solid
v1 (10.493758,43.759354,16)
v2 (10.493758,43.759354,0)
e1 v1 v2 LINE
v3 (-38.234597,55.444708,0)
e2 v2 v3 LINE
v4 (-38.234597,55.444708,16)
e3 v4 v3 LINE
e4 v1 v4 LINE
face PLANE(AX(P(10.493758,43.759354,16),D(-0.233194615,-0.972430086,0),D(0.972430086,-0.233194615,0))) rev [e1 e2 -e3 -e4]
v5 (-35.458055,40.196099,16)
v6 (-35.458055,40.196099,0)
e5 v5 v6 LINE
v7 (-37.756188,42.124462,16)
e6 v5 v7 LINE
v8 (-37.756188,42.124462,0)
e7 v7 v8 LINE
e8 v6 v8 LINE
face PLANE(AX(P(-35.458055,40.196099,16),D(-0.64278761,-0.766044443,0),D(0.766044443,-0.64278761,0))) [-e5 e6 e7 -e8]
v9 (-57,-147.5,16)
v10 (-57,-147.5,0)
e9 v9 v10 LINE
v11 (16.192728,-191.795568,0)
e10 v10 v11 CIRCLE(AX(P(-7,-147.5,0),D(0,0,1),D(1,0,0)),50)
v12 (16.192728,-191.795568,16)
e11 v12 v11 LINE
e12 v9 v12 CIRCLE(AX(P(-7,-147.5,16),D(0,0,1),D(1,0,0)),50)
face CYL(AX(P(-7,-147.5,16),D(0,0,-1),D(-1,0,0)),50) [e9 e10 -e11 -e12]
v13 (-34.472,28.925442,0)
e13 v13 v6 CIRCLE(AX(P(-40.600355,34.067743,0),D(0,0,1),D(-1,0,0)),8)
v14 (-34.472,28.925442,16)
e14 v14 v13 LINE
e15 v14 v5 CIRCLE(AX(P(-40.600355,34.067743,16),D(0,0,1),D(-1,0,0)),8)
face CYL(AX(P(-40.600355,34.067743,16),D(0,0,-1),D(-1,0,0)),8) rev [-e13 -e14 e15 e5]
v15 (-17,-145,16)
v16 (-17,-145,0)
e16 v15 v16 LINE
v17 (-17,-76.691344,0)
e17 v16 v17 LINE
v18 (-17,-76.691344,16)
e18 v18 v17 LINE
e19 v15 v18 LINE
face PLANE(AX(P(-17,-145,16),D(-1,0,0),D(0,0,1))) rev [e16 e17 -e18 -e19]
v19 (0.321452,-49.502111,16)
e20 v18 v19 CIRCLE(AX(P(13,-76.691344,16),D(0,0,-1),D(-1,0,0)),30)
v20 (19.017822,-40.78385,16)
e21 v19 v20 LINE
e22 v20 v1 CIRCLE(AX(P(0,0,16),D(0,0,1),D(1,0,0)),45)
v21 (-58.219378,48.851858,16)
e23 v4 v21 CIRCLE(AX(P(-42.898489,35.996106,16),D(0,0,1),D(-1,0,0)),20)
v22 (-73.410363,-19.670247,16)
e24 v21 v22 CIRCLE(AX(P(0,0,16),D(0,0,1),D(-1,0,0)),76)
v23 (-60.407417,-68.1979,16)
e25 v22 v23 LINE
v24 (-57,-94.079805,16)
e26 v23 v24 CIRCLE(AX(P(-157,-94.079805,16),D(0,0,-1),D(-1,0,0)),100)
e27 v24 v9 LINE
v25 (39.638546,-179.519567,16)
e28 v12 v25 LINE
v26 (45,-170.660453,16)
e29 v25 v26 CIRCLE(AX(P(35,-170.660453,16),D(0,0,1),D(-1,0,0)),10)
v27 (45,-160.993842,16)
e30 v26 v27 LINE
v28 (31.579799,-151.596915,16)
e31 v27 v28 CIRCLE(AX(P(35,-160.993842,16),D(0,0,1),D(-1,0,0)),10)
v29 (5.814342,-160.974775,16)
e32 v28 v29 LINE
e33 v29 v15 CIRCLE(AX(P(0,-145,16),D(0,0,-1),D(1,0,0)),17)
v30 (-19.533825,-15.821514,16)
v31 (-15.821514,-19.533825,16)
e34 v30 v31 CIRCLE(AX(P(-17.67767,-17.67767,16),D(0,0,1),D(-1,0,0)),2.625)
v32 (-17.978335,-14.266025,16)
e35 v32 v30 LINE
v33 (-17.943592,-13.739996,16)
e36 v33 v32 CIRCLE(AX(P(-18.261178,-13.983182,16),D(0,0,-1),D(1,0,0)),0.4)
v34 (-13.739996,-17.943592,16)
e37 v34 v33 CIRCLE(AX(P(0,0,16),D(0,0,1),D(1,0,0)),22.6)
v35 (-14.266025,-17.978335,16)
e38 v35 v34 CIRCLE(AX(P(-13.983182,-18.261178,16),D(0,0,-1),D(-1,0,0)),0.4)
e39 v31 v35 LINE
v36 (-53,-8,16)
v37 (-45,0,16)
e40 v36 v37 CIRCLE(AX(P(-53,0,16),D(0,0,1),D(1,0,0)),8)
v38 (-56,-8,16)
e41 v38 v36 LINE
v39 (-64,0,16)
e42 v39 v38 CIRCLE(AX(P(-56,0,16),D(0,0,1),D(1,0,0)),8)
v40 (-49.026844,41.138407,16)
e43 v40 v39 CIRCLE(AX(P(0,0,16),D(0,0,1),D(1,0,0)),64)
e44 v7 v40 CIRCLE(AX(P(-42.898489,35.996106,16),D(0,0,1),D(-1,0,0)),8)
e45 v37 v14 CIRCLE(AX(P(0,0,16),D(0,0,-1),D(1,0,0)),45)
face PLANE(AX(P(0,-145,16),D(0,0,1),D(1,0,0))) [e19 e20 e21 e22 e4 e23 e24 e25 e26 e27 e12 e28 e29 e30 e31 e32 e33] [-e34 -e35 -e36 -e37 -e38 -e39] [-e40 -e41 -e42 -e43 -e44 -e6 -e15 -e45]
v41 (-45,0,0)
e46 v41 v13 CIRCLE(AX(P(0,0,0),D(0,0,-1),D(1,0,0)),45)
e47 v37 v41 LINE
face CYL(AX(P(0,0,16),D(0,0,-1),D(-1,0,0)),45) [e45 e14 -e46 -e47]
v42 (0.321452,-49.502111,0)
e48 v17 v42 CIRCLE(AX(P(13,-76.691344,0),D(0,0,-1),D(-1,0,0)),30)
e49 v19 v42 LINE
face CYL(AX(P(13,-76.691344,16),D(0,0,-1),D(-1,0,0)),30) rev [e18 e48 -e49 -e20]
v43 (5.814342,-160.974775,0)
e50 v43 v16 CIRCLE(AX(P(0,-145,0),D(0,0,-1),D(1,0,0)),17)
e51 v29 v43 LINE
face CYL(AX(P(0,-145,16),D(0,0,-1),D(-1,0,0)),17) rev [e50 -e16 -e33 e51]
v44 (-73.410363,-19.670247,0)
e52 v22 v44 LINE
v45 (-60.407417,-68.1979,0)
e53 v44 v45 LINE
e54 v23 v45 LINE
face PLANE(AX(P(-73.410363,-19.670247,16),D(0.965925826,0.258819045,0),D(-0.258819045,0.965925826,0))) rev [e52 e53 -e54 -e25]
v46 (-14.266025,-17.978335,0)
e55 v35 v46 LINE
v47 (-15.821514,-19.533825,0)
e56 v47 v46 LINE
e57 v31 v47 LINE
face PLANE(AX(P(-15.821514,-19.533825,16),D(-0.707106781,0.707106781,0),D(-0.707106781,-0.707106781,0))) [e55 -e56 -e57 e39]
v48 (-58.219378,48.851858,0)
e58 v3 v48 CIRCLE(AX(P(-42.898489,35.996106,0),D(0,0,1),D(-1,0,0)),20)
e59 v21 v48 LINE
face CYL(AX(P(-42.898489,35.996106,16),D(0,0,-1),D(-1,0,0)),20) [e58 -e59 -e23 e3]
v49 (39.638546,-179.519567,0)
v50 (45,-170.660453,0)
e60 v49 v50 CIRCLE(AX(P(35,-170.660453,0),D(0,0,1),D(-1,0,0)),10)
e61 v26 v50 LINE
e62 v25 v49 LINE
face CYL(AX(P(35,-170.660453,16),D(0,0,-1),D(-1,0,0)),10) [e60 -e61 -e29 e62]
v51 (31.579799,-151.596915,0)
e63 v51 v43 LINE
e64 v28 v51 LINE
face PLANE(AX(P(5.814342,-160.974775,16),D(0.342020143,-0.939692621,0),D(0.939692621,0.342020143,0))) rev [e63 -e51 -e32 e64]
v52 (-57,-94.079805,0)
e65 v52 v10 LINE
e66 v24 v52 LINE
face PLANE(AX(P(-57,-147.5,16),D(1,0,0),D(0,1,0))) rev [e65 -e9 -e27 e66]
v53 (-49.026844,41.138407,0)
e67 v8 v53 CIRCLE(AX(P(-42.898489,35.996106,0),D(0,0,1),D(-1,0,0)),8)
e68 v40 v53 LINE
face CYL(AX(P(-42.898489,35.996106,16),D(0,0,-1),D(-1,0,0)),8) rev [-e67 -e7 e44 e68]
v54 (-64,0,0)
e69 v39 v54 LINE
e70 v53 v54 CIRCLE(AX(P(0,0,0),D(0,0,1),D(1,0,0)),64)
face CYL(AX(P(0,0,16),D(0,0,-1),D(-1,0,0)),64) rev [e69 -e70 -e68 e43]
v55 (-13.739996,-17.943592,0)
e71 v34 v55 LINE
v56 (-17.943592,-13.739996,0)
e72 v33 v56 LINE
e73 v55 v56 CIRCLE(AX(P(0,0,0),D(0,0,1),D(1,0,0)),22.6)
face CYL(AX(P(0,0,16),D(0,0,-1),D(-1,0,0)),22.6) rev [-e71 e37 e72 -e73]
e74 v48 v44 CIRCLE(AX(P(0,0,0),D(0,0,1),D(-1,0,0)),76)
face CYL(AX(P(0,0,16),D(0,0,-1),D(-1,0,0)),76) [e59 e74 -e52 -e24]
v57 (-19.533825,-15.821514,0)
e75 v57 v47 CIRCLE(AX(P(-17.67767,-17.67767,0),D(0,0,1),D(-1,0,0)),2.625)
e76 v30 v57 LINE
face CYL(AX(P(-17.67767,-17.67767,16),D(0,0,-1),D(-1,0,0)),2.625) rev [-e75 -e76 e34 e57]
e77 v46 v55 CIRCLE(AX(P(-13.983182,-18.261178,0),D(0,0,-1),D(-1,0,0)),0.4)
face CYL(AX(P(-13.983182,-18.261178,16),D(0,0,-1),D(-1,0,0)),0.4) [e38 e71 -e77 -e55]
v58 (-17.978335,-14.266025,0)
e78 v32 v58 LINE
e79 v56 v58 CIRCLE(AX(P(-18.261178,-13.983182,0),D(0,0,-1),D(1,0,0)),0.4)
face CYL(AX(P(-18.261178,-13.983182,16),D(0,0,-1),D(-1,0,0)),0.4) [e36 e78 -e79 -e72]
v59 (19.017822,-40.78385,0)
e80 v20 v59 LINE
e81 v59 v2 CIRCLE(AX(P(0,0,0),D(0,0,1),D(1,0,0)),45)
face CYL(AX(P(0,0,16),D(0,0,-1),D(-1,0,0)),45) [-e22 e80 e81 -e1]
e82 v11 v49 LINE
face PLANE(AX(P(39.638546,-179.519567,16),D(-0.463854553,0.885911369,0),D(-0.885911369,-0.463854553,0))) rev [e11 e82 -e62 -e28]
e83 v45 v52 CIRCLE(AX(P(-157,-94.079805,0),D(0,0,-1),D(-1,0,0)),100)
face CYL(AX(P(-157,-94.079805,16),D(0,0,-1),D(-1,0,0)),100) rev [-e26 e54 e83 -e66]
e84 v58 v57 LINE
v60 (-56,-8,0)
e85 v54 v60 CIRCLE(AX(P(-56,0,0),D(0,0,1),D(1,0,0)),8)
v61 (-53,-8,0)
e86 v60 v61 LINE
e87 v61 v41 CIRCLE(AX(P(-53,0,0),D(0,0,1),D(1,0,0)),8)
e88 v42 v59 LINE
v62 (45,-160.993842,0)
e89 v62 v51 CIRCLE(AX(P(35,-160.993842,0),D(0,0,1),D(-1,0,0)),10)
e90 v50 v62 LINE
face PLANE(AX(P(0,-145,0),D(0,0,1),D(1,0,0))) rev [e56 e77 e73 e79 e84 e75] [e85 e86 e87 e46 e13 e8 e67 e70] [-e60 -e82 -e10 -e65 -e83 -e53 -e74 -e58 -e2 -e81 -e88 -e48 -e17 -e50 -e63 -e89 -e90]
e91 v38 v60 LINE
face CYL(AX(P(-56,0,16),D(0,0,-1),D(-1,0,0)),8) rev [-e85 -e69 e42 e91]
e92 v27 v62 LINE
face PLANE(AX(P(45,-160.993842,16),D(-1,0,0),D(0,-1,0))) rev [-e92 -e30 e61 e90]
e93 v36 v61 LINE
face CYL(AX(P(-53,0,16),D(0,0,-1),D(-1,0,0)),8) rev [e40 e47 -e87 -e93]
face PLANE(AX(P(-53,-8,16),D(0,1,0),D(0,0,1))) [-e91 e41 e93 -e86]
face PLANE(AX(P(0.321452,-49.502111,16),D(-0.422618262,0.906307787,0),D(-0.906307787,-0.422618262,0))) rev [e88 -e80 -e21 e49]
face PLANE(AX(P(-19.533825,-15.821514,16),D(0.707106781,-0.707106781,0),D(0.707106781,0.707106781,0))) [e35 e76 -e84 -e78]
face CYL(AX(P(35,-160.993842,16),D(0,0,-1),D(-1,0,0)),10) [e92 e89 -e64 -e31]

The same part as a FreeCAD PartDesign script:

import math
import FreeCAD as App
import Part
import Sketcher

V = App.Vector
Q = App.Units.Quantity

doc = App.newDocument("Part")
body = doc.addObject("PartDesign::Body", "Body")

# Sketch on XY plane
sketch1 = doc.addObject("Sketcher::SketchObject", "Sketch")
body.addObject(sketch1)
sketch1.AttachmentSupport = (doc.XY_Plane, [""])
sketch1.MapMode = "FlatFace"
sketch1.addGeometry([
    Part.LineSegment(V(31.58, -151.6, 0), V(5.81, -160.97, 0)),  # 0
    Part.ArcOfCircle(Part.Circle(V(0, -145, 0), V(0, 0, 1), 17), math.radians(180), math.radians(290)),  # 1
    Part.LineSegment(V(-17, -145, 0), V(-17, -76.69, 0)),  # 2
    Part.ArcOfCircle(Part.Circle(V(13, -76.69, 0), V(0, 0, 1), 30), math.radians(115), math.radians(180)),  # 3
    Part.LineSegment(V(0.32, -49.5, 0), V(19.02, -40.78, 0)),  # 4
    Part.ArcOfCircle(Part.Circle(V(0, 0, 0), V(0, 0, 1), 45), math.radians(-65), math.radians(77)),  # 5
    Part.LineSegment(V(10.49, 43.76, 0), V(-38.23, 55.44, 0)),  # 6
    Part.ArcOfCircle(Part.Circle(V(-42.9, 36, 0), V(0, 0, 1), 20), math.radians(77), math.radians(140)),  # 7
    Part.ArcOfCircle(Part.Circle(V(0, 0, 0), V(0, 0, 1), 76), math.radians(140), math.radians(195)),  # 8
    Part.LineSegment(V(-73.41, -19.67, 0), V(-60.41, -68.2, 0)),  # 9
    Part.ArcOfCircle(Part.Circle(V(-157, -94.08, 0), V(0, 0, 1), 100), math.radians(0), math.radians(15)),  # 10
    Part.LineSegment(V(-57, -94.08, 0), V(-57, -147.5, 0)),  # 11
    Part.ArcOfCircle(Part.Circle(V(-7, -147.5, 0), V(0, 0, 1), 50), math.radians(180), math.radians(298)),  # 12
    Part.LineSegment(V(16.19, -191.8, 0), V(39.64, -179.52, 0)),  # 13
    Part.ArcOfCircle(Part.Circle(V(35, -170.66, 0), V(0, 0, 1), 10), math.radians(-62), math.radians(0)),  # 14
    Part.LineSegment(V(45, -170.66, 0), V(45, -160.99, 0)),  # 15
    Part.ArcOfCircle(Part.Circle(V(35, -160.99, 0), V(0, 0, 1), 10), math.radians(0), math.radians(110)),  # 16
    Part.ArcOfCircle(Part.Circle(V(-17.68, -17.68, 0), V(0, 0, 1), 2.62), math.radians(135), math.radians(315)),  # 17
    Part.LineSegment(V(-19.53, -15.82, 0), V(-17.98, -14.27, 0)),  # 18
    Part.ArcOfCircle(Part.Circle(V(-18.26, -13.98, 0), V(0, 0, 1), 0.4), math.radians(-45), math.radians(37)),  # 19
    Part.ArcOfCircle(Part.Circle(V(0, 0, 0), V(0, 0, 1), 22.6), math.radians(-127), math.radians(217)),  # 20
    Part.ArcOfCircle(Part.Circle(V(-13.98, -18.26, 0), V(0, 0, 1), 0.4), math.radians(53), math.radians(135)),  # 21
    Part.LineSegment(V(-14.27, -17.98, 0), V(-15.82, -19.53, 0)),  # 22
    Part.LineSegment(V(-53, -8, 0), V(-56, -8, 0)),  # 23
    Part.ArcOfCircle(Part.Circle(V(-56, 0, 0), V(0, 0, 1), 8), math.radians(-180), math.radians(-90)),  # 24
    Part.ArcOfCircle(Part.Circle(V(0, 0, 0), V(0, 0, 1), 64), math.radians(140), math.radians(180)),  # 25
    Part.ArcOfCircle(Part.Circle(V(-42.9, 36, 0), V(0, 0, 1), 8), math.radians(50), math.radians(140)),  # 26
    Part.LineSegment(V(-37.76, 42.12, 0), V(-35.46, 40.2, 0)),  # 27
    Part.ArcOfCircle(Part.Circle(V(-40.6, 34.07, 0), V(0, 0, 1), 8), math.radians(-40), math.radians(50)),  # 28
    Part.ArcOfCircle(Part.Circle(V(0, 0, 0), V(0, 0, 1), 45), math.radians(140), math.radians(180)),  # 29
    Part.ArcOfCircle(Part.Circle(V(-53, 0, 0), V(0, 0, 1), 8), math.radians(-90), math.radians(0)),  # 30
], False)
sketch1.addConstraint([
    Sketcher.Constraint("Tangent", 0, 2, 1, 2),
    Sketcher.Constraint("Tangent", 1, 1, 2, 1),
    Sketcher.Constraint("Tangent", 2, 2, 3, 2),
    Sketcher.Constraint("Tangent", 3, 1, 4, 1),
    Sketcher.Constraint("Tangent", 4, 2, 5, 1),
    Sketcher.Constraint("Tangent", 5, 2, 6, 1),
    Sketcher.Constraint("Tangent", 6, 2, 7, 1),
    Sketcher.Constraint("Tangent", 7, 2, 8, 1),
    Sketcher.Constraint("Tangent", 8, 2, 9, 1),
    Sketcher.Constraint("Tangent", 9, 2, 10, 2),
    Sketcher.Constraint("Tangent", 10, 1, 11, 1),
    Sketcher.Constraint("Tangent", 11, 2, 12, 1),
    Sketcher.Constraint("Tangent", 12, 2, 13, 1),
    Sketcher.Constraint("Tangent", 13, 2, 14, 1),
    Sketcher.Constraint("Tangent", 14, 2, 15, 1),
    Sketcher.Constraint("Tangent", 15, 2, 16, 1),
    Sketcher.Constraint("Tangent", 16, 2, 0, 1),
    Sketcher.Constraint("Tangent", 17, 1, 18, 1),
    Sketcher.Constraint("Tangent", 18, 2, 19, 1),
    Sketcher.Constraint("Tangent", 19, 2, 20, 2),
    Sketcher.Constraint("Tangent", 20, 1, 21, 1),
    Sketcher.Constraint("Tangent", 21, 2, 22, 1),
    Sketcher.Constraint("Tangent", 22, 2, 17, 2),
    Sketcher.Constraint("Tangent", 23, 2, 24, 2),
    Sketcher.Constraint("Tangent", 24, 1, 25, 2),
    Sketcher.Constraint("Tangent", 25, 1, 26, 2),
    Sketcher.Constraint("Tangent", 26, 1, 27, 1),
    Sketcher.Constraint("Tangent", 27, 2, 28, 2),
    Sketcher.Constraint("Tangent", 28, 1, 29, 1),
    Sketcher.Constraint("Tangent", 29, 2, 30, 2),
    Sketcher.Constraint("Tangent", 30, 1, 23, 1),
    Sketcher.Constraint("Vertical", 2),
    Sketcher.Constraint("Vertical", 11),
    Sketcher.Constraint("Vertical", 15),
    Sketcher.Constraint("Horizontal", 23),
    Sketcher.Constraint("Coincident", 5, 3, -1, 1),
    Sketcher.Constraint("Coincident", 8, 3, -1, 1),
    Sketcher.Constraint("Coincident", 20, 3, -1, 1),
    Sketcher.Constraint("Coincident", 25, 3, -1, 1),
    Sketcher.Constraint("Coincident", 29, 3, -1, 1),
    Sketcher.Constraint("Coincident", 26, 3, 7, 3),
    Sketcher.Constraint("Equal", 14, 16),
    Sketcher.Constraint("Equal", 19, 21),
    Sketcher.Constraint("Equal", 24, 26),
    Sketcher.Constraint("Equal", 26, 28),
    Sketcher.Constraint("Equal", 5, 29),
    Sketcher.Constraint("Equal", 28, 30),
    Sketcher.Constraint("PointOnObject", 1, 3, -2),
    Sketcher.Constraint("PointOnObject", 24, 3, -1),
    Sketcher.Constraint("Parallel", 18, 22),
    Sketcher.Constraint("Equal", 18, 22),
    Sketcher.Constraint("Radius", 1, Q("17 mm")),
    Sketcher.Constraint("Radius", 3, Q("30 mm")),
    Sketcher.Constraint("Radius", 5, Q("45 mm")),
    Sketcher.Constraint("Radius", 7, Q("20 mm")),
    Sketcher.Constraint("Radius", 8, Q("76 mm")),
    Sketcher.Constraint("Radius", 10, Q("100 mm")),
    Sketcher.Constraint("Radius", 12, Q("50 mm")),
    Sketcher.Constraint("Radius", 14, Q("10 mm")),
    Sketcher.Constraint("Radius", 24, Q("8 mm")),
    Sketcher.Constraint("Radius", 19, Q("0.4 mm")),
    Sketcher.Constraint("Radius", 20, Q("22.6 mm")),
    Sketcher.Constraint("Angle", 0, Q("-160 deg")),
    Sketcher.Constraint("Angle", 4, Q("25 deg")),
    Sketcher.Constraint("Angle", 9, Q("-75 deg")),
    Sketcher.Constraint("Angle", 18, Q("45 deg")),
    Sketcher.Constraint("Angle", 27, Q("-40 deg")),
    Sketcher.Constraint("DistanceY", 1, 3, -1, 1, Q("145 mm")),
    Sketcher.Constraint("DistanceX", 10, 3, -1, 1, Q("157 mm")),
    Sketcher.Constraint("DistanceX", -1, 1, 14, 3, Q("35 mm")),
    Sketcher.Constraint("Radius", 17, Q("2.625 mm")),
    Sketcher.Constraint("DistanceY", 12, 3, -1, 1, Q("147.5 mm")),
    Sketcher.Constraint("DistanceX", 28, 1, -1, 1, Q("34.472 mm")),
    Sketcher.Constraint("DistanceY", 12, 2, 13, 2, Q("12.276002 mm")),
    Sketcher.Constraint("DistanceX", 17, 3, -1, 1, Q("17.67767 mm")),
])
pad1 = doc.addObject("PartDesign::Pad", "Pad")
body.addObject(pad1)
pad1.Profile = sketch1
pad1.Length = 16

doc.recompute()
